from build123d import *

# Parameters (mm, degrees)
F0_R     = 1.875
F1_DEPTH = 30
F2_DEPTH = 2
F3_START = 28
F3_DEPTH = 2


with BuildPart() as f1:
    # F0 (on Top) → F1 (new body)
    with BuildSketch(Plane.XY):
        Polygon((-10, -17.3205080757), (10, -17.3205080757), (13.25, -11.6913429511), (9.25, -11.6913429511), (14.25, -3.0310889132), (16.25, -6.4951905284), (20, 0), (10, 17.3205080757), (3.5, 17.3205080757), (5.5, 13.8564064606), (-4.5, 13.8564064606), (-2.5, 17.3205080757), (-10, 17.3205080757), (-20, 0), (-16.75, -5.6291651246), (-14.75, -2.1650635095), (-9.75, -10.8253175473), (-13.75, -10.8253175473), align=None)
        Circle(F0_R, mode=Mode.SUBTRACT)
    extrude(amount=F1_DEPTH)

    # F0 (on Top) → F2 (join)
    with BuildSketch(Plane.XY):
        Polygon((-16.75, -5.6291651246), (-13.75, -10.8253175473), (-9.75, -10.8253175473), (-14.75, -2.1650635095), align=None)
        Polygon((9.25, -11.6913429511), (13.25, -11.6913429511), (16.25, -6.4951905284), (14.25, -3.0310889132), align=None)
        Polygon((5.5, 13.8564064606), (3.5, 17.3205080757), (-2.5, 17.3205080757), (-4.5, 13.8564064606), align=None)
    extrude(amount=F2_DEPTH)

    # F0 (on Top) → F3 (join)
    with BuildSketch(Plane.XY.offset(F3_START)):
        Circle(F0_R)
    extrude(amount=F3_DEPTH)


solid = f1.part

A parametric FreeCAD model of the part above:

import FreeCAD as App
import Part
import Sketcher

V = App.Vector
Q = App.Units.Quantity

doc = App.newDocument("Part")
body = doc.addObject("PartDesign::Body", "Body")

# Sketch on XY plane
sketch1 = body.newObject("Sketcher::SketchObject", "Sketch")
sketch1.AttachmentSupport = (doc.getObject("XY_Plane"), [""])
sketch1.MapMode = "FlatFace"
sketch1.addGeometry(Part.LineSegment(V(-10, -17.3, 0), V(10, -17.3, 0)), False)
sketch1.addGeometry(Part.LineSegment(V(10, -17.3, 0), V(13.2, -11.7, 0)), False)
sketch1.addGeometry(Part.LineSegment(V(13.2, -11.7, 0), V(9.2, -11.7, 0)), False)
sketch1.addGeometry(Part.LineSegment(V(9.2, -11.7, 0), V(14.2, -3, 0)), False)
sketch1.addGeometry(Part.LineSegment(V(14.2, -3, 0), V(16.2, -6.5, 0)), False)
sketch1.addGeometry(Part.LineSegment(V(16.2, -6.5, 0), V(20, 0, 0)), False)
sketch1.addGeometry(Part.LineSegment(V(20, 0, 0), V(10, 17.3, 0)), False)
sketch1.addGeometry(Part.LineSegment(V(10, 17.3, 0), V(3.5, 17.3, 0)), False)
sketch1.addGeometry(Part.LineSegment(V(3.5, 17.3, 0), V(5.5, 13.9, 0)), False)
sketch1.addGeometry(Part.LineSegment(V(5.5, 13.9, 0), V(-4.5, 13.9, 0)), False)
sketch1.addGeometry(Part.LineSegment(V(-4.5, 13.9, 0), V(-2.5, 17.3, 0)), False)
sketch1.addGeometry(Part.LineSegment(V(-2.5, 17.3, 0), V(-10, 17.3, 0)), False)
sketch1.addGeometry(Part.LineSegment(V(-10, 17.3, 0), V(-20, 0, 0)), False)
sketch1.addGeometry(Part.LineSegment(V(-20, 0, 0), V(-16.8, -5.6, 0)), False)
sketch1.addGeometry(Part.LineSegment(V(-16.8, -5.6, 0), V(-14.8, -2.2, 0)), False)
sketch1.addGeometry(Part.LineSegment(V(-14.8, -2.2, 0), V(-9.8, -10.8, 0)), False)
sketch1.addGeometry(Part.LineSegment(V(-9.8, -10.8, 0), V(-13.8, -10.8, 0)), False)
sketch1.addGeometry(Part.LineSegment(V(-13.8, -10.8, 0), V(-10, -17.3, 0)), False)
sketch1.addGeometry(Part.Circle(V(0, 0, 0), V(0, 0, 1), 1.9), False)
sketch1.addConstraint(Sketcher.Constraint("Coincident", 0, 2, 1, 1))
sketch1.addConstraint(Sketcher.Constraint("Coincident", 1, 2, 2, 1))
sketch1.addConstraint(Sketcher.Constraint("Coincident", 2, 2, 3, 1))
sketch1.addConstraint(Sketcher.Constraint("Coincident", 3, 2, 4, 1))
sketch1.addConstraint(Sketcher.Constraint("Coincident", 4, 2, 5, 1))
sketch1.addConstraint(Sketcher.Constraint("Coincident", 5, 2, 6, 1))
sketch1.addConstraint(Sketcher.Constraint("Coincident", 6, 2, 7, 1))
sketch1.addConstraint(Sketcher.Constraint("Coincident", 7, 2, 8, 1))
sketch1.addConstraint(Sketcher.Constraint("Coincident", 8, 2, 9, 1))
sketch1.addConstraint(Sketcher.Constraint("Coincident", 9, 2, 10, 1))
sketch1.addConstraint(Sketcher.Constraint("Coincident", 10, 2, 11, 1))
sketch1.addConstraint(Sketcher.Constraint("Coincident", 11, 2, 12, 1))
sketch1.addConstraint(Sketcher.Constraint("Coincident", 12, 2, 13, 1))
sketch1.addConstraint(Sketcher.Constraint("Coincident", 13, 2, 14, 1))
sketch1.addConstraint(Sketcher.Constraint("Coincident", 14, 2, 15, 1))
sketch1.addConstraint(Sketcher.Constraint("Coincident", 15, 2, 16, 1))
sketch1.addConstraint(Sketcher.Constraint("Coincident", 16, 2, 17, 1))
sketch1.addConstraint(Sketcher.Constraint("Coincident", 17, 2, 0, 1))
sketch1.addConstraint(Sketcher.Constraint("Horizontal", 0))
sketch1.addConstraint(Sketcher.Constraint("Horizontal", 2))
sketch1.addConstraint(Sketcher.Constraint("Horizontal", 7))
sketch1.addConstraint(Sketcher.Constraint("Horizontal", 9))
sketch1.addConstraint(Sketcher.Constraint("Horizontal", 11))
sketch1.addConstraint(Sketcher.Constraint("Horizontal", 16))
sketch1.addConstraint(Sketcher.Constraint("Coincident", 18, 3, -1, 1))
sketch1.addConstraint(Sketcher.Constraint("Symmetric", 0, 2, 11, 2, -1, 1))
sketch1.addConstraint(Sketcher.Constraint("Symmetric", 5, 2, 12, 2, -1, 1))
sketch1.addConstraint(Sketcher.Constraint("Symmetric", 6, 2, 17, 2, -1, 1))
sketch1.addConstraint(Sketcher.Constraint("PointOnObject", 5, 2, -1))
sketch1.addConstraint(Sketcher.Constraint("Parallel", 1, 3))
sketch1.addConstraint(Sketcher.Constraint("Parallel", 3, 5))
sketch1.addConstraint(Sketcher.Constraint("Parallel", 4, 6))
sketch1.addConstraint(Sketcher.Constraint("Parallel", 6, 8))
sketch1.addConstraint(Sketcher.Constraint("Parallel", 5, 10))
sketch1.addConstraint(Sketcher.Constraint("Parallel", 10, 12))
sketch1.addConstraint(Sketcher.Constraint("Parallel", 8, 13))
sketch1.addConstraint(Sketcher.Constraint("Parallel", 12, 14))
sketch1.addConstraint(Sketcher.Constraint("Parallel", 13, 15))
sketch1.addConstraint(Sketcher.Constraint("Parallel", 15, 17))
sketch1.addConstraint(Sketcher.Constraint("Vertical", 0, 2, 6, 2))
sketch1.addConstraint(Sketcher.Constraint("Equal", 2, 16))
sketch1.addConstraint(Sketcher.Constraint("Equal", 4, 8))
sketch1.addConstraint(Sketcher.Constraint("Equal", 1, 13))
sketch1.addConstraint(Sketcher.Constraint("Equal", 3, 15))
sketch1.addConstraint(Sketcher.Constraint("Diameter", 18, 3.75))
sketch1.addConstraint(Sketcher.Constraint("DistanceX", 0, 1, 0, 2, 20.0))
sketch1.addConstraint(Sketcher.Constraint("DistanceX", 2, 2, 2, 1, 4.0))
sketch1.addConstraint(Sketcher.Constraint("DistanceX", 9, 2, 9, 1, 10.0))
sketch1.addConstraint(Sketcher.Constraint("Angle", 1, Q("60 deg")))
sketch1.addConstraint(Sketcher.Constraint("Distance", 3, 10.0))
sketch1.addConstraint(Sketcher.Constraint("Distance", 6, 20.0))
sketch1.addConstraint(Sketcher.Constraint("DistanceX", 7, 2, 7, 1, 6.5))
sketch1.addConstraint(Sketcher.Constraint("Distance", 1, 6.5))
pad1 = body.newObject("PartDesign::Pad", "Pad")
pad1.Profile = sketch1
pad1.Length = 30

# Sketch on XY plane
sketch2 = body.newObject("Sketcher::SketchObject", "Sketch001")
sketch2.AttachmentSupport = (doc.getObject("XY_Plane"), [""])
sketch2.MapMode = "FlatFace"
sketch2.addGeometry(Part.LineSegment(V(-16.8, -5.6, 0), V(-13.8, -10.8, 0)), False)
sketch2.addGeometry(Part.LineSegment(V(-13.8, -10.8, 0), V(-9.8, -10.8, 0)), False)
sketch2.addGeometry(Part.LineSegment(V(-9.8, -10.8, 0), V(-14.8, -2.2, 0)), False)
sketch2.addGeometry(Part.LineSegment(V(-14.8, -2.2, 0), V(-16.8, -5.6, 0)), False)
sketch2.addGeometry(Part.LineSegment(V(9.2, -11.7, 0), V(13.2, -11.7, 0)), False)
sketch2.addGeometry(Part.LineSegment(V(13.2, -11.7, 0), V(16.2, -6.5, 0)), False)
sketch2.addGeometry(Part.LineSegment(V(16.2, -6.5, 0), V(14.2, -3, 0)), False)
sketch2.addGeometry(Part.LineSegment(V(14.2, -3, 0), V(9.2, -11.7, 0)), False)
sketch2.addGeometry(Part.LineSegment(V(5.5, 13.9, 0), V(3.5, 17.3, 0)), False)
sketch2.addGeometry(Part.LineSegment(V(3.5, 17.3, 0), V(-2.5, 17.3, 0)), False)
sketch2.addGeometry(Part.LineSegment(V(-2.5, 17.3, 0), V(-4.5, 13.9, 0)), False)
sketch2.addGeometry(Part.LineSegment(V(-4.5, 13.9, 0), V(5.5, 13.9, 0)), False)
sketch2.addConstraint(Sketcher.Constraint("Coincident", 0, 2, 1, 1))
sketch2.addConstraint(Sketcher.Constraint("Coincident", 1, 2, 2, 1))
sketch2.addConstraint(Sketcher.Constraint("Coincident", 2, 2, 3, 1))
sketch2.addConstraint(Sketcher.Constraint("Coincident", 3, 2, 0, 1))
sketch2.addConstraint(Sketcher.Constraint("Coincident", 4, 2, 5, 1))
sketch2.addConstraint(Sketcher.Constraint("Coincident", 5, 2, 6, 1))
sketch2.addConstraint(Sketcher.Constraint("Coincident", 6, 2, 7, 1))
sketch2.addConstraint(Sketcher.Constraint("Coincident", 7, 2, 4, 1))
sketch2.addConstraint(Sketcher.Constraint("Coincident", 8, 2, 9, 1))
sketch2.addConstraint(Sketcher.Constraint("Coincident", 9, 2, 10, 1))
sketch2.addConstraint(Sketcher.Constraint("Coincident", 10, 2, 11, 1))
sketch2.addConstraint(Sketcher.Constraint("Coincident", 11, 2, 8, 1))
sketch2.addConstraint(Sketcher.Constraint("Horizontal", 1))
sketch2.addConstraint(Sketcher.Constraint("Horizontal", 4))
sketch2.addConstraint(Sketcher.Constraint("Horizontal", 9))
sketch2.addConstraint(Sketcher.Constraint("Horizontal", 11))
sketch2.addConstraint(Sketcher.Constraint("Parallel", 0, 2))
sketch2.addConstraint(Sketcher.Constraint("Parallel", 3, 5))
sketch2.addConstraint(Sketcher.Constraint("Parallel", 2, 6))
sketch2.addConstraint(Sketcher.Constraint("Parallel", 5, 7))
sketch2.addConstraint(Sketcher.Constraint("Parallel", 6, 8))
sketch2.addConstraint(Sketcher.Constraint("Parallel", 7, 10))
sketch2.addConstraint(Sketcher.Constraint("Equal", 1, 4))
sketch2.addConstraint(Sketcher.Constraint("Equal", 0, 5))
sketch2.addConstraint(Sketcher.Constraint("Equal", 3, 6))
sketch2.addConstraint(Sketcher.Constraint("Equal", 6, 8))
sketch2.addConstraint(Sketcher.Constraint("DistanceX", 1, 1, 1, 2, 4.0))
sketch2.addConstraint(Sketcher.Constraint("DistanceX", 9, 2, 9, 1, 6.0))
sketch2.addConstraint(Sketcher.Constraint("Angle", 0, Q("-60 deg")))
sketch2.addConstraint(Sketcher.Constraint("Distance", 0, 6.0))
sketch2.addConstraint(Sketcher.Constraint("DistanceX", 1, 2, 4, 2, 23.0))
sketch2.addConstraint(Sketcher.Constraint("DistanceX", -1, 1, 8, 2, 3.5))
sketch2.addConstraint(Sketcher.Constraint("DistanceX", 0, 2, -1, 1, 13.75))
sketch2.addConstraint(Sketcher.Constraint("DistanceY", 5, 2, 8, 2, 23.815699))
sketch2.addConstraint(Sketcher.Constraint("DistanceY", 5, 2, -1, 1, 6.495191))
sketch2.addConstraint(Sketcher.Constraint("DistanceY", 4, 2, 2, 2, 9.526279))
pad2 = body.newObject("PartDesign::Pad", "Pad001")
pad2.Profile = sketch2
pad2.Length = 2

# Sketch on XY plane
sketch3 = body.newObject("Sketcher::SketchObject", "Sketch002")
sketch3.AttachmentSupport = (doc.getObject("XY_Plane"), [""])
sketch3.MapMode = "FlatFace"
sketch3.AttachmentOffset = App.Placement(V(0, 0, 28), App.Rotation())
sketch3.addGeometry(Part.Circle(V(0, 0, 0), V(0, 0, 1), 1.9), False)
sketch3.addConstraint(Sketcher.Constraint("Coincident", 0, 3, -1, 1))
sketch3.addConstraint(Sketcher.Constraint("Diameter", 0, 3.75))
pad3 = body.newObject("PartDesign::Pad", "Pad002")
pad3.Profile = sketch3
pad3.Length = 2

doc.recompute()
